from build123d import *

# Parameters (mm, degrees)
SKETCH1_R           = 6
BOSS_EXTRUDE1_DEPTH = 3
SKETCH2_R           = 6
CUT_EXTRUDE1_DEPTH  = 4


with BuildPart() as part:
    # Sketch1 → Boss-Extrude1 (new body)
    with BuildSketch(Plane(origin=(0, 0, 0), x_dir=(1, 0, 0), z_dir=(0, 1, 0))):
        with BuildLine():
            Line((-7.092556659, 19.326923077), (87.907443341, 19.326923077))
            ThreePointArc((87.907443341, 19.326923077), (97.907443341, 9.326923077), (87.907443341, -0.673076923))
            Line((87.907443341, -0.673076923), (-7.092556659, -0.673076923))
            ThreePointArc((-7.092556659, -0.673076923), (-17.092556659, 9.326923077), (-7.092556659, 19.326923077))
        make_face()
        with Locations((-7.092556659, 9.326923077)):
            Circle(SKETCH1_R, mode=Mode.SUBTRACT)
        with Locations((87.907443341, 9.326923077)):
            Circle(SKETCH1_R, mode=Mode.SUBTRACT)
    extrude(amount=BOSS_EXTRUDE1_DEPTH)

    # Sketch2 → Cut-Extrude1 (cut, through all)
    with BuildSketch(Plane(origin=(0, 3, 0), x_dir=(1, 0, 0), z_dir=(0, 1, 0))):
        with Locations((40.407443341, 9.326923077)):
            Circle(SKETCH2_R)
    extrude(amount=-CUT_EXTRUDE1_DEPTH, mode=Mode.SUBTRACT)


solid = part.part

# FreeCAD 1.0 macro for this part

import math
import FreeCAD as App
import Part
import Sketcher

V = App.Vector

doc = App.newDocument("Part")
body = doc.addObject("PartDesign::Body", "Body")

# Sketch on XZ plane
sketch1 = body.newObject("Sketcher::SketchObject", "Sketch")
sketch1.AttachmentSupport = (doc.getObject("XZ_Plane"), [""])
sketch1.MapMode = "FlatFace"
sketch1.addGeometry([
    Part.LineSegment(V(87.907443, -19.326923, 0), V(-7.092557, -19.326923, 0)),  # 0
    Part.ArcOfCircle(Part.Circle(V(-7.092557, -9.326923, 0), V(0, 0, 1), 10), math.radians(90), math.radians(270)),  # 1
    Part.LineSegment(V(-7.092557, 0.673077, 0), V(87.907443, 0.673077, 0)),  # 2
    Part.ArcOfCircle(Part.Circle(V(87.907443, -9.326923, 0), V(0, 0, 1), 10), math.radians(-90), math.radians(90)),  # 3
    Part.Circle(V(87.907443, -9.326923, 0), V(0, 0, 1), 6),  # 4
    Part.Circle(V(-7.092557, -9.326923, 0), V(0, 0, 1), 6),  # 5
], False)
sketch1.addConstraint([
    Sketcher.Constraint("Tangent", 0, 2, 1, 2),
    Sketcher.Constraint("Tangent", 1, 1, 2, 1),
    Sketcher.Constraint("Tangent", 2, 2, 3, 2),
    Sketcher.Constraint("Tangent", 3, 1, 0, 1),
    Sketcher.Constraint("Horizontal", 0),
    Sketcher.Constraint("Horizontal", 2),
    Sketcher.Constraint("Coincident", 4, 3, 3, 3),
    Sketcher.Constraint("Coincident", 5, 3, 1, 3),
    Sketcher.Constraint("Equal", 4, 5),
    Sketcher.Constraint("Diameter", 4, 12.0),
    Sketcher.Constraint("Radius", 1, 10.0),
    Sketcher.Constraint("DistanceX", 0, 2, 0, 1, 95.0),
    Sketcher.Constraint("DistanceX", 1, 3, -1, 1, 7.092557),
    Sketcher.Constraint("DistanceY", 1, 3, -1, 1, 9.326923),
])
pad1 = body.newObject("PartDesign::Pad", "Pad")
pad1.Profile = sketch1
pad1.Length = 3
pad1.Reversed = True

# Sketch on XZ plane
sketch2 = body.newObject("Sketcher::SketchObject", "Sketch001")
sketch2.AttachmentSupport = (doc.getObject("XZ_Plane"), [""])
sketch2.MapMode = "FlatFace"
sketch2.AttachmentOffset = App.Placement(V(0, 0, -3), App.Rotation())
sketch2.addGeometry(Part.Circle(V(40.407443, -9.326923, 0), V(0, 0, 1), 6), False)
sketch2.addConstraint([
    Sketcher.Constraint("Diameter", 0, 12.0),
    Sketcher.Constraint("DistanceX", -1, 1, 0, 3, 40.407443),
    Sketcher.Constraint("DistanceY", 0, 3, -1, 1, 9.326923),
])
pocket1 = body.newObject("PartDesign::Pocket", "Pocket")
pocket1.Profile = sketch2
pocket1.Type = "ThroughAll"
pocket1.Reversed = True

doc.recompute()
